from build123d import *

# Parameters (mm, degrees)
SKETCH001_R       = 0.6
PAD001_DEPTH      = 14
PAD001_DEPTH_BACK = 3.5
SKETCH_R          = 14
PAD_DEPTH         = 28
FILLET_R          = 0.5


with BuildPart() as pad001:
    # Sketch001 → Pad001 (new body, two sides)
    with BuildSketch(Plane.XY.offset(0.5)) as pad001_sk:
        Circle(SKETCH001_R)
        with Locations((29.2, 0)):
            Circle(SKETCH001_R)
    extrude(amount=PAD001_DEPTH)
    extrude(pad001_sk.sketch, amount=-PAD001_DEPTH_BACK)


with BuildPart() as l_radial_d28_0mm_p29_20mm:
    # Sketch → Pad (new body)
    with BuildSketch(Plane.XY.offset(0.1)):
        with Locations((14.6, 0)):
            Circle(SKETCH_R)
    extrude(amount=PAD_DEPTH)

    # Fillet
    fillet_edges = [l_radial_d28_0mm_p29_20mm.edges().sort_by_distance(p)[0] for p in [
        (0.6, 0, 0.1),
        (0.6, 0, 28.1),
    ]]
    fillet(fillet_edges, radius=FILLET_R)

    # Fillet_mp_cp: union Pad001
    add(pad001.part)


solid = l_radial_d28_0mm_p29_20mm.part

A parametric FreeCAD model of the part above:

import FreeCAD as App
import Part
import Sketcher

V = App.Vector


def edges_at(feature, points):
    """Names of the edges that pass closest to the given points."""
    edges = feature.Shape.Edges
    near = lambda p: min(range(len(edges)), key=lambda i: edges[i].distToShape(Part.Vertex(*p))[0])
    return sorted({f"Edge{near(p) + 1}" for p in points})

doc = App.newDocument("Part")
params = doc.addObject("Spreadsheet::Sheet", "Params")
for row, (alias, value) in enumerate([
    ("sketch1_diameter", "1.2 mm"),
    ("pad1_length", "14 mm"),
    ("pad1_length2", "3.5 mm"),
    ("sketch2_diameter", "28 mm"),
    ("pad2_length", "28 mm"),
    ("fillet_radius", "0.5 mm"),
], start=1):
    params.set(f"A{row}", alias)
    params.set(f"B{row}", "=" + value)
    params.setAlias(f"B{row}", alias)

body = doc.addObject("PartDesign::Body", "Body")
body.AllowCompound = True

sketch1 = body.newObject("Sketcher::SketchObject", "Sketch")
sketch1.AttachmentSupport = (doc.getObject("XY_Plane"), [""])
sketch1.MapMode = "FlatFace"
sketch1.AttachmentOffset = App.Placement(V(0, 0, 0.5), App.Rotation())
sketch1.addGeometry([
    Part.Circle(V(0, 0, 0), V(0, 0, 1), 0.6),
    Part.Circle(V(29.2, 0, 0), V(0, 0, 1), 0.6),
], False)
sketch1.addConstraint([
    Sketcher.Constraint("Coincident", 0, 3, -1, 1),
    Sketcher.Constraint("Equal", 0, 1),
    Sketcher.Constraint("PointOnObject", 1, 3, -1),
    Sketcher.Constraint("Diameter", 0, 1.2),
    Sketcher.Constraint("DistanceX", -1, 1, 1, 3, 29.2),
])
sketch1.setExpression("Constraints[3]", "Params.sketch1_diameter")
pad1 = body.newObject("PartDesign::Pad", "Pad")
pad1.Profile = sketch1
pad1.Type = "TwoLengths"
pad1.setExpression("Length", "Params.pad1_length")
pad1.setExpression("Length2", "Params.pad1_length2")
body2 = doc.addObject("PartDesign::Body", "Body001")
body2.AllowCompound = True

sketch2 = body2.newObject("Sketcher::SketchObject", "Sketch001")
sketch2.AttachmentSupport = (doc.getObject("XY_Plane001"), [""])
sketch2.MapMode = "FlatFace"
sketch2.AttachmentOffset = App.Placement(V(0, 0, 0.1), App.Rotation())
sketch2.addGeometry(Part.Circle(V(14.6, 0, 0), V(0, 0, 1), 14), False)
sketch2.addConstraint([
    Sketcher.Constraint("PointOnObject", 0, 3, -1),
    Sketcher.Constraint("Diameter", 0, 28.0),
    Sketcher.Constraint("DistanceX", -1, 1, 0, 3, 14.6),
])
sketch2.setExpression("Constraints[1]", "Params.sketch2_diameter")
pad2 = body2.newObject("PartDesign::Pad", "Pad001")
pad2.Profile = sketch2
pad2.setExpression("Length", "Params.pad2_length")
doc.recompute()

fillet = body2.newObject("PartDesign::Fillet", "Fillet")
fillet.Base = (pad2, edges_at(pad2, [(0.6, 0, 0.1), (0.6, 0, 28.1)]))
fillet.setExpression("Radius", "Params.fillet_radius")
doc.recompute()

boolean = body2.newObject("PartDesign::Boolean", "Boolean")
boolean.Type = "Fuse"
boolean.addObjects([body])

doc.recompute()
